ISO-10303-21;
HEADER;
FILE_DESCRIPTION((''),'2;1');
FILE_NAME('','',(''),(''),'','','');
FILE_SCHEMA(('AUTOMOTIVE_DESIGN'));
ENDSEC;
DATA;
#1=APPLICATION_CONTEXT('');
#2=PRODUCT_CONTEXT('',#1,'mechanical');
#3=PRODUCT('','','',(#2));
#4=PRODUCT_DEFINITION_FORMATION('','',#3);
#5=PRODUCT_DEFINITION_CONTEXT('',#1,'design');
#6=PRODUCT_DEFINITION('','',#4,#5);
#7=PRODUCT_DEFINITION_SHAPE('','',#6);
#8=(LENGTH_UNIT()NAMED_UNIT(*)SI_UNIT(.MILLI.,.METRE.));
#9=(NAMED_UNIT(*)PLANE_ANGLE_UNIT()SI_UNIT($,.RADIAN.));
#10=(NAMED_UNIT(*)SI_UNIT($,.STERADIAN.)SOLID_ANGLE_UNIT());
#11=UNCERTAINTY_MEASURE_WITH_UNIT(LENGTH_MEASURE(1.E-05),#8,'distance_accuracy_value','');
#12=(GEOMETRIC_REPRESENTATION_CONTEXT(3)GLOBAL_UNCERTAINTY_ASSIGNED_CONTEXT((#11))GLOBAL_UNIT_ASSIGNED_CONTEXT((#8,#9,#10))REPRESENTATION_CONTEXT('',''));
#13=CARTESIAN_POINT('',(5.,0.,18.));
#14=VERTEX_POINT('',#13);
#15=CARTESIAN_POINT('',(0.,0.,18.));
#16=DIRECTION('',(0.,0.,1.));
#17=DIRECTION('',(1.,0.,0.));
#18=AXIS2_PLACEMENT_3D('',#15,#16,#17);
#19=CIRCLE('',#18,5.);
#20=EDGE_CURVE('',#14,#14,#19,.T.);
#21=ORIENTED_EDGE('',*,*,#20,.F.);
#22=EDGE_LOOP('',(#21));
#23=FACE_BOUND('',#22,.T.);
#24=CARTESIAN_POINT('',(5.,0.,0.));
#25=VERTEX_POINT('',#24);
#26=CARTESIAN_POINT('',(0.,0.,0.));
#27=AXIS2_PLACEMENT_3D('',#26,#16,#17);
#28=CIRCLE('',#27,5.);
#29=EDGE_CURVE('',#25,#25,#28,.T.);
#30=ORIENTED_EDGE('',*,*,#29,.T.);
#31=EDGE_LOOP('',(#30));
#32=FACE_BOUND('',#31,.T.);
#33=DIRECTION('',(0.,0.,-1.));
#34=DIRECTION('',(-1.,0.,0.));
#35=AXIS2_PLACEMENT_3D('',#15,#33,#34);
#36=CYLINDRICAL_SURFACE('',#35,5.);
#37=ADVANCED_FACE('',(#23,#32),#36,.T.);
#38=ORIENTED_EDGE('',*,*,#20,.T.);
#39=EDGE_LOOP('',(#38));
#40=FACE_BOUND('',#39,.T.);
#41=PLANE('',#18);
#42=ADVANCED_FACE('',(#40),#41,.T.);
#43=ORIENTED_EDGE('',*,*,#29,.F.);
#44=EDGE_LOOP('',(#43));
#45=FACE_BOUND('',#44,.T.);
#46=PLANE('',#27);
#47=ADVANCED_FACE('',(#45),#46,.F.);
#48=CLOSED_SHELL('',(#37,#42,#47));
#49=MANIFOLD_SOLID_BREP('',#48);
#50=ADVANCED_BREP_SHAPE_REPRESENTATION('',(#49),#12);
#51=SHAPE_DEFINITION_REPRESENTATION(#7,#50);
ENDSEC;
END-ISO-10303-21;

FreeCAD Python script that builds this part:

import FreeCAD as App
import Part
import Sketcher
from FreeCAD import Vector

doc = App.newDocument("Part")
params = doc.addObject("Spreadsheet::Sheet", "Params")
for row, (alias, value) in enumerate([
    ("sketch1_diameter", "10 mm"),
    ("pad1_length", "18 mm"),
], start=1):
    params.set(f"A{row}", alias)
    params.set(f"B{row}", "=" + value)
    params.setAlias(f"B{row}", alias)

body = doc.addObject("PartDesign::Body", "Body")

sketch1 = doc.addObject("Sketcher::SketchObject", "Sketch")
body.addObject(sketch1)
sketch1.AttachmentSupport = (doc.XY_Plane, [""])
sketch1.MapMode = "FlatFace"
sketch1.addGeometry(Part.Circle(Vector(0, 0, 0), Vector(0, 0, 1), 5), False)
sketch1.addConstraint([
    Sketcher.Constraint("Coincident", 0, 3, -1, 1),
    Sketcher.Constraint("Diameter", 0, 10.0),
])
sketch1.setExpression("Constraints[1]", "Params.sketch1_diameter")
pad1 = doc.addObject("PartDesign::Pad", "Pad")
body.addObject(pad1)
pad1.Profile = sketch1
pad1.setExpression("Length", "Params.pad1_length")

doc.recompute()
